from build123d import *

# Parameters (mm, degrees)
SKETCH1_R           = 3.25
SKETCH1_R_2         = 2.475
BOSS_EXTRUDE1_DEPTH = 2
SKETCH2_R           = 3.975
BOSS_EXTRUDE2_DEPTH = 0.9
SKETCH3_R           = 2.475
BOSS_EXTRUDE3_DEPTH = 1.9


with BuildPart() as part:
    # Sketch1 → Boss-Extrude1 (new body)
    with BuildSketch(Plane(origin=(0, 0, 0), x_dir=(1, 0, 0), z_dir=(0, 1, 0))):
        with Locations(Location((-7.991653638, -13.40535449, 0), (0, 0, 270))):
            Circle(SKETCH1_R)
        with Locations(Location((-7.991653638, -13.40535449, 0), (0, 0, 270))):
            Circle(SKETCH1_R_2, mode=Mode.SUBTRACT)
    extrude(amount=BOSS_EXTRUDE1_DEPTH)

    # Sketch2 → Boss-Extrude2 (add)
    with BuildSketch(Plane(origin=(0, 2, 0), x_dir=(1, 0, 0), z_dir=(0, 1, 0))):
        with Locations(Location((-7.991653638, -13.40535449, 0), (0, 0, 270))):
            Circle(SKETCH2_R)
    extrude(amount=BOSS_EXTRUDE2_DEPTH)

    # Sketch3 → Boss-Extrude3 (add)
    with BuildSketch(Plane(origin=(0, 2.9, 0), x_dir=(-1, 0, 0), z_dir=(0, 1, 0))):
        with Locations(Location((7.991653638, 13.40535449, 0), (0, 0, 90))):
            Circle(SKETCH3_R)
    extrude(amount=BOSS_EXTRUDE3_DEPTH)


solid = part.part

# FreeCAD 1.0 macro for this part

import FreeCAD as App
import Part
import Sketcher

V = App.Vector

doc = App.newDocument("Part")
params = doc.addObject("Spreadsheet::Sheet", "Params")
for row, (alias, value) in enumerate([
    ("sketch1_diameter", "6.5 mm"),
    ("sketch1_diameter2", "4.95 mm"),
    ("pad1_length", "2 mm"),
    ("sketch2_diameter", "7.95 mm"),
    ("pad2_length", "0.9 mm"),
    ("sketch3_diameter", "4.95 mm"),
    ("pad3_length", "1.9 mm"),
], start=1):
    params.set(f"A{row}", alias)
    params.set(f"B{row}", "=" + value)
    params.setAlias(f"B{row}", alias)

body = doc.addObject("PartDesign::Body", "Body")

# Sketch on XZ plane
sketch1 = doc.addObject("Sketcher::SketchObject", "Sketch")
body.addObject(sketch1)
sketch1.AttachmentSupport = (doc.XZ_Plane, [""])
sketch1.MapMode = "FlatFace"
sketch1.addGeometry([
    Part.Circle(V(-8, 13.4, 0), V(0, 0, 1), 3.2),
    Part.Circle(V(-8, 13.4, 0), V(0, 0, 1), 2.5),
], False)
sketch1.addConstraint([
    Sketcher.Constraint("Coincident", 1, 3, 0, 3),
    Sketcher.Constraint("Diameter", 0, 6.5),
    Sketcher.Constraint("Diameter", 1, 4.95),
    Sketcher.Constraint("DistanceX", 0, 3, -1, 1, 7.991654),
    Sketcher.Constraint("DistanceY", -1, 1, 0, 3, 13.405354),
])
sketch1.setExpression("Constraints[1]", "Params.sketch1_diameter")
sketch1.setExpression("Constraints[2]", "Params.sketch1_diameter2")
pad1 = doc.addObject("PartDesign::Pad", "Pad")
body.addObject(pad1)
pad1.Profile = sketch1
pad1.setExpression("Length", "Params.pad1_length")
pad1.Reversed = True

# Sketch on XZ plane
sketch2 = doc.addObject("Sketcher::SketchObject", "Sketch001")
body.addObject(sketch2)
sketch2.AttachmentSupport = (doc.XZ_Plane, [""])
sketch2.MapMode = "FlatFace"
sketch2.AttachmentOffset = App.Placement(V(0, 0, -2), App.Rotation())
sketch2.addGeometry(Part.Circle(V(-8, 13.4, 0), V(0, 0, 1), 4), False)
sketch2.addConstraint([
    Sketcher.Constraint("Diameter", 0, 7.95),
    Sketcher.Constraint("DistanceX", 0, 3, -1, 1, 7.991654),
    Sketcher.Constraint("DistanceY", -1, 1, 0, 3, 13.405354),
])
sketch2.setExpression("Constraints[0]", "Params.sketch2_diameter")
pad2 = doc.addObject("PartDesign::Pad", "Pad001")
body.addObject(pad2)
pad2.Profile = sketch2
pad2.setExpression("Length", "Params.pad2_length")
pad2.Reversed = True

# Sketch on XZ plane
sketch3 = doc.addObject("Sketcher::SketchObject", "Sketch002")
body.addObject(sketch3)
sketch3.AttachmentSupport = (doc.XZ_Plane, [""])
sketch3.MapMode = "FlatFace"
sketch3.AttachmentOffset = App.Placement(V(0, 0, -2.9), App.Rotation())
sketch3.addGeometry(Part.Circle(V(-8, 13.4, 0), V(0, 0, 1), 2.5), False)
sketch3.addConstraint([
    Sketcher.Constraint("Diameter", 0, 4.95),
    Sketcher.Constraint("DistanceX", 0, 3, -1, 1, 7.991654),
    Sketcher.Constraint("DistanceY", -1, 1, 0, 3, 13.405354),
])
sketch3.setExpression("Constraints[0]", "Params.sketch3_diameter")
pad3 = doc.addObject("PartDesign::Pad", "Pad002")
body.addObject(pad3)
pad3.Profile = sketch3
pad3.setExpression("Length", "Params.pad3_length")
pad3.Reversed = True

doc.recompute()
